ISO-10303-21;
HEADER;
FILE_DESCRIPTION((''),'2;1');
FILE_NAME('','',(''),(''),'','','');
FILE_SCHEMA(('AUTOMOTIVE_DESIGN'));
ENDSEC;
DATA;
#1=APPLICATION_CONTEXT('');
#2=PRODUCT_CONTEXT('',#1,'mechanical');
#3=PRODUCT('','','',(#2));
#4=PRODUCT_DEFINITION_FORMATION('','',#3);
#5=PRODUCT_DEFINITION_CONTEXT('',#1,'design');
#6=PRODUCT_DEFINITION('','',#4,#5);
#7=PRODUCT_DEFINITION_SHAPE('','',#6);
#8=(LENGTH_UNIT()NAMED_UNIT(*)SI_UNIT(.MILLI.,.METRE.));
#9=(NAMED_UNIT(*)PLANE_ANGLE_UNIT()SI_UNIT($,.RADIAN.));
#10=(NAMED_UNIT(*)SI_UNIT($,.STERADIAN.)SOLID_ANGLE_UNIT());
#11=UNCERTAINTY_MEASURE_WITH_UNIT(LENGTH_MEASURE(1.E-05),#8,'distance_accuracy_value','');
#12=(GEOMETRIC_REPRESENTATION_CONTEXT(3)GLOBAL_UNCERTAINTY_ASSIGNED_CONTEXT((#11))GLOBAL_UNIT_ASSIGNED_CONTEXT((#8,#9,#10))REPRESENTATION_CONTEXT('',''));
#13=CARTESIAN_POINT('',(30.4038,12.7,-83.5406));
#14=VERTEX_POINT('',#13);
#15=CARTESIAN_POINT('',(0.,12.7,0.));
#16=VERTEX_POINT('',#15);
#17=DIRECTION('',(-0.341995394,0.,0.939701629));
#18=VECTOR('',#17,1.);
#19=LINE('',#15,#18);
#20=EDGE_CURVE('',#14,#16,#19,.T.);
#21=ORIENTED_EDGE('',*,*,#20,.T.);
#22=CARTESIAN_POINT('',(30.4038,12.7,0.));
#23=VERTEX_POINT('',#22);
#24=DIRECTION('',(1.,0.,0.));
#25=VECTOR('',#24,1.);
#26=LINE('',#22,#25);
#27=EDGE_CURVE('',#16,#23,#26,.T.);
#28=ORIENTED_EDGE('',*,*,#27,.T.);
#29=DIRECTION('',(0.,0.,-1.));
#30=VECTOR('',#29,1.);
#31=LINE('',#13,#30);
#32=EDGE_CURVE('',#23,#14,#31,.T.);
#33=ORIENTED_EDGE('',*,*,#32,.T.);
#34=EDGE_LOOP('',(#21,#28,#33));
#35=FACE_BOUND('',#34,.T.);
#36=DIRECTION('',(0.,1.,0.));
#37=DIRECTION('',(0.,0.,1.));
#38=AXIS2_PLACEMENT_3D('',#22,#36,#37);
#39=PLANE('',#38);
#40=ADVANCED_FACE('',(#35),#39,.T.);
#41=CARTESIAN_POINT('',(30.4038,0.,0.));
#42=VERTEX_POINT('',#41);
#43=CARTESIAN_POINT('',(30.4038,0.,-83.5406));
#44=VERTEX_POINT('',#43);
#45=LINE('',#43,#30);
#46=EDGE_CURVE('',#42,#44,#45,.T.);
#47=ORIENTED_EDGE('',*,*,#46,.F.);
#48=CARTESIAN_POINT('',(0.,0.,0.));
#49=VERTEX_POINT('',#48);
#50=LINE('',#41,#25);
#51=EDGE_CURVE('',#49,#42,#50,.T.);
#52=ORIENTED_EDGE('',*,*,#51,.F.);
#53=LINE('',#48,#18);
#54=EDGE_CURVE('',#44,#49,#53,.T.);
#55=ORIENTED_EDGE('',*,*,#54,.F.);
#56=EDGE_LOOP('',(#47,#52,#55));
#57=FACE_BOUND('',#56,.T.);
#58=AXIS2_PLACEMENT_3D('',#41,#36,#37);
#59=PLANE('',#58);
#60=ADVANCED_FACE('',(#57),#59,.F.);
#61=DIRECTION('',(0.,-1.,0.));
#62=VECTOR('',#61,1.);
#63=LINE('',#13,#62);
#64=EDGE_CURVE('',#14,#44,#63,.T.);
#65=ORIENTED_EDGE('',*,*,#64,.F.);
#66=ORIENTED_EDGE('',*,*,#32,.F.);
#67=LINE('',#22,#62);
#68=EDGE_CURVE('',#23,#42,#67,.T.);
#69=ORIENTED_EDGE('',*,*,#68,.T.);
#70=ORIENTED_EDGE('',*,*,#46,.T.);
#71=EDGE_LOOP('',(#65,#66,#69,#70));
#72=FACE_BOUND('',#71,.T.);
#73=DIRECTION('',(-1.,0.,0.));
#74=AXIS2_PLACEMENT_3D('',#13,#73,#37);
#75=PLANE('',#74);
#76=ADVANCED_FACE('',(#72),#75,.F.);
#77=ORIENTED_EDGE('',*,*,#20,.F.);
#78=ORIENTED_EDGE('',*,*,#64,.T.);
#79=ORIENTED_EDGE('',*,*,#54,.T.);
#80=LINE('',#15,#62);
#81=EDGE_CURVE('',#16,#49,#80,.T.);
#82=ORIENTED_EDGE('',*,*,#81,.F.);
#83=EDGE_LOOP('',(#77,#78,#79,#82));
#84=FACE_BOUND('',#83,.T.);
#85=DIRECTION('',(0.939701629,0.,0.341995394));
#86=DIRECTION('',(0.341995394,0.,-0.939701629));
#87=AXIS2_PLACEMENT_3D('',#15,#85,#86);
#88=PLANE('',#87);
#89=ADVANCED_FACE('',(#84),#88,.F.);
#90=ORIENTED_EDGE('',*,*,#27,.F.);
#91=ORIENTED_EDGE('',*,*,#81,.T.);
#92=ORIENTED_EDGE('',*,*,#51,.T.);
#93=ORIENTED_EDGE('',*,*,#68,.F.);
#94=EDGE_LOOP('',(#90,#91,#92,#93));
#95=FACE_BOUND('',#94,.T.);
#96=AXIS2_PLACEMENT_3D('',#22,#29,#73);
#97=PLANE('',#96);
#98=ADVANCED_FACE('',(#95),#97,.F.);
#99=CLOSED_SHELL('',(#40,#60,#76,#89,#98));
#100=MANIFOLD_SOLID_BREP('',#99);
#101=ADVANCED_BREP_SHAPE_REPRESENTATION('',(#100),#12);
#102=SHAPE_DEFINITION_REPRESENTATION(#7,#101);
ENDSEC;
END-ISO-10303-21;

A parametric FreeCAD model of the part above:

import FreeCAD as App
import Part
import Sketcher
from FreeCAD import Vector
Q = App.Units.Quantity

doc = App.newDocument("Part")
body = doc.addObject("PartDesign::Body", "Body")

# Sketch on XZ plane
sketch1 = body.newObject("Sketcher::SketchObject", "Sketch")
sketch1.AttachmentSupport = (doc.getObject("XZ_Plane"), [""])
sketch1.MapMode = "FlatFace"
sketch1.addGeometry(Part.LineSegment(Vector(30, -84, 0), Vector(0, 0, 0)), False)
sketch1.addGeometry(Part.LineSegment(Vector(0, 0, 0), Vector(30, 0, 0)), False)
sketch1.addGeometry(Part.LineSegment(Vector(30, 0, 0), Vector(30, -84, 0)), False)
sketch1.addConstraint(Sketcher.Constraint("Coincident", 0, 2, 1, 1))
sketch1.addConstraint(Sketcher.Constraint("Coincident", 1, 2, 2, 1))
sketch1.addConstraint(Sketcher.Constraint("Coincident", 2, 2, 0, 1))
sketch1.addConstraint(Sketcher.Constraint("Horizontal", 1))
sketch1.addConstraint(Sketcher.Constraint("Vertical", 2))
sketch1.addConstraint(Sketcher.Constraint("Coincident", 0, 2, -1, 1))
sketch1.addConstraint(Sketcher.Constraint("DistanceX", 1, 1, 1, 2, Q("1.197 in")))
sketch1.addConstraint(Sketcher.Constraint("DistanceY", 2, 2, 2, 1, Q("3.289 in")))
pad1 = body.newObject("PartDesign::Pad", "Pad")
pad1.Profile = sketch1
pad1.Length = Q("0.5 in")
pad1.Reversed = True

doc.recompute()
